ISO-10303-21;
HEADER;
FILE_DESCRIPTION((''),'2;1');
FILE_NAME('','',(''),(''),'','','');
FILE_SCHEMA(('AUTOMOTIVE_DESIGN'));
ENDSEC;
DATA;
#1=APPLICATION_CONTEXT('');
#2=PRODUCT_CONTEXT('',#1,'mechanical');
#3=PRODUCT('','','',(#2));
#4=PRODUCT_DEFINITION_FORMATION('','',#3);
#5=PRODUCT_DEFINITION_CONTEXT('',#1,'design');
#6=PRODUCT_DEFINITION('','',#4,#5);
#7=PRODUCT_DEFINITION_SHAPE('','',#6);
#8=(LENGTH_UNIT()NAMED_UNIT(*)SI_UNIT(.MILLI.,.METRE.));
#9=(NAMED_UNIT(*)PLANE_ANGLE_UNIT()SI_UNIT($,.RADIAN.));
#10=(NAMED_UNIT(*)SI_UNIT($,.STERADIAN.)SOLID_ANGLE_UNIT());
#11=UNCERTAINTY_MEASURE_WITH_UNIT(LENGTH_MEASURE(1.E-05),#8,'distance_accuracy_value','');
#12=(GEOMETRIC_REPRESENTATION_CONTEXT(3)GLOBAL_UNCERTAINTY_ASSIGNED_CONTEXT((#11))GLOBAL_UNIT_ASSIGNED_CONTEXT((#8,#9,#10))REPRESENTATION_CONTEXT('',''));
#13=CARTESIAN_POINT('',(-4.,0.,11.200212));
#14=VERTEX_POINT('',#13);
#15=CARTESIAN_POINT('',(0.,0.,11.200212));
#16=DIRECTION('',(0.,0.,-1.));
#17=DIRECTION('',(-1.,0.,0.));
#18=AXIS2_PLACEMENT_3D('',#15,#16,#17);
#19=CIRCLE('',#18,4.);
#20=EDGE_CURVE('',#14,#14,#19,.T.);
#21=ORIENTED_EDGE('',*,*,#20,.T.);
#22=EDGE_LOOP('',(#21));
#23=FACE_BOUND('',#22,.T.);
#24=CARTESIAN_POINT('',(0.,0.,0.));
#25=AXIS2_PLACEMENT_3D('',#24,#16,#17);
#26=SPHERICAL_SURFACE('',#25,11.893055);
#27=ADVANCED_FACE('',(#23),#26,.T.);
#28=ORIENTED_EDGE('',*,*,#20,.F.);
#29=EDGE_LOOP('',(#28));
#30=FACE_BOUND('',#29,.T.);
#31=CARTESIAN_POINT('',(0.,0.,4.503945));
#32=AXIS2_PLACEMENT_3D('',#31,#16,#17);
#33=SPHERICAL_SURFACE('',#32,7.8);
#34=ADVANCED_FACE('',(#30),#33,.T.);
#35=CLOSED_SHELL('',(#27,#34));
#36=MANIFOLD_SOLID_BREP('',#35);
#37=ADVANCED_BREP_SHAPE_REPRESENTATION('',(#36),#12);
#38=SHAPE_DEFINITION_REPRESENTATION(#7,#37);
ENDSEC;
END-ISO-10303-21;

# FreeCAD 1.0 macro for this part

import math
import FreeCAD as App
import Part
import Sketcher

doc = App.newDocument("Part")
body = doc.addObject("PartDesign::Body", "Body")

sketch1 = doc.addObject("Sketcher::SketchObject", "Sketch")
body.addObject(sketch1)
sketch1.AttachmentSupport = (doc.XZ_Plane, [""])
sketch1.MapMode = "FlatFace"
sketch1.addGeometry([
    Part.LineSegment(App.Vector(0, 12.3, 0), App.Vector(0, -11.9, 0)),
    Part.ArcOfCircle(Part.Circle(App.Vector(0, 0, 0), App.Vector(0, 0, 1), 11.9), math.radians(110), math.radians(270)),
    Part.ArcOfCircle(Part.Circle(App.Vector(0, 4.5, 0), App.Vector(0, 0, 1), 7.8), math.radians(90), math.radians(121)),
], False)
sketch1.addConstraint([
    Sketcher.Constraint("Coincident", 0, 2, 1, 2),
    Sketcher.Constraint("Coincident", 1, 1, 2, 2),
    Sketcher.Constraint("Coincident", 2, 1, 0, 1),
    Sketcher.Constraint("Vertical", 0),
    Sketcher.Constraint("Coincident", 1, 3, -1, 1),
    Sketcher.Constraint("PointOnObject", 2, 3, -2),
    Sketcher.Constraint("PointOnObject", 0, 2, -2),
    Sketcher.Constraint("Radius", 2, 7.8),
    Sketcher.Constraint("DistanceX", 1, 1, -1, 1, 4.0),
    Sketcher.Constraint("DistanceY", 0, 2, 0, 1, 24.197),
])
revolution = doc.addObject("PartDesign::Revolution", "Revolution")
body.addObject(revolution)
revolution.Profile = sketch1
revolution.ReferenceAxis = (sketch1, ["V_Axis"])
revolution.Angle = 360

doc.recompute()
